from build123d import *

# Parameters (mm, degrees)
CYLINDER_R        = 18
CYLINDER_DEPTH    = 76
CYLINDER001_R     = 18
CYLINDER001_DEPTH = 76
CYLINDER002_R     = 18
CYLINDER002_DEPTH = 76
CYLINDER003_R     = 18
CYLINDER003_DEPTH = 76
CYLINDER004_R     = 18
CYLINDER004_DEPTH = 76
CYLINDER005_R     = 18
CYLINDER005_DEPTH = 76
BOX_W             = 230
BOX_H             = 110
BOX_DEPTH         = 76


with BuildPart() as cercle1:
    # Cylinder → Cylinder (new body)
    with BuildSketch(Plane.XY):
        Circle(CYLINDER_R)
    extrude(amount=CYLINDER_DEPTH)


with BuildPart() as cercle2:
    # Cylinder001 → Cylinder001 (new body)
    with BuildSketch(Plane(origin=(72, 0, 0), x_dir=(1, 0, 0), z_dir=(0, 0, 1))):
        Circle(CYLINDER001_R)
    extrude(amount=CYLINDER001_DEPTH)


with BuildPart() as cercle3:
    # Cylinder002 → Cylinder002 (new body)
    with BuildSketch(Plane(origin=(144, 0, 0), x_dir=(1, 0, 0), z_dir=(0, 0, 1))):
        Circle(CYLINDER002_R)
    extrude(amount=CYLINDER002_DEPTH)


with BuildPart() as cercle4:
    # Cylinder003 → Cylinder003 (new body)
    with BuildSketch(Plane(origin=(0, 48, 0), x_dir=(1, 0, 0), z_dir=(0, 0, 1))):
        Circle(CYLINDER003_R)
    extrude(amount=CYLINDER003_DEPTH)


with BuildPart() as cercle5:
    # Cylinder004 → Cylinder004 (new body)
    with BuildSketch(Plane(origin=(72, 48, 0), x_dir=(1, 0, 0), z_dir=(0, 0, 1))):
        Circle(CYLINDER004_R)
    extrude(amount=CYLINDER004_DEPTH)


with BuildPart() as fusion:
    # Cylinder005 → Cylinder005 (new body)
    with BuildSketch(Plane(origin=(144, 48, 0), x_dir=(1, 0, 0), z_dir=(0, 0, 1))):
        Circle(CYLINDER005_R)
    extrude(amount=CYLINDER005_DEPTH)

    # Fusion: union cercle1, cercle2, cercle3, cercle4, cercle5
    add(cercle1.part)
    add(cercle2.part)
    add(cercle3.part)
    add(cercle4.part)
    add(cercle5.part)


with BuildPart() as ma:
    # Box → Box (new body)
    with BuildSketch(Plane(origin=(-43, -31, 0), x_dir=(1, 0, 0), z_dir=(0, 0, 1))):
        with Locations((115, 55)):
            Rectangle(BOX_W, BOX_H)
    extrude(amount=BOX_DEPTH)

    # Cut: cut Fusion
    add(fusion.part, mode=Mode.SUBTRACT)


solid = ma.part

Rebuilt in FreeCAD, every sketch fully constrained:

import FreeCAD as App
import Part
import Sketcher

V = App.Vector
Q = App.Units.Quantity

doc = App.newDocument("Part")
params = doc.addObject("Spreadsheet::Sheet", "Params")
for row, (alias, value) in enumerate([
    ("sketch1_diameter", "36 mm"),
    ("pad1_length", "76 mm"),
    ("sketch2_diameter", "36 mm"),
    ("pad2_length", "76 mm"),
    ("sketch3_diameter", "36 mm"),
    ("pad3_length", "76 mm"),
    ("sketch4_diameter", "36 mm"),
    ("pad4_length", "76 mm"),
    ("sketch5_diameter", "36 mm"),
    ("pad5_length", "76 mm"),
    ("sketch6_diameter", "36 mm"),
    ("pad6_length", "76 mm"),
    ("sketch7_width", "230 mm"),
    ("sketch7_height", "110 mm"),
    ("pad7_length", "76 mm"),
], start=1):
    params.set(f"A{row}", alias)
    params.set(f"B{row}", "=" + value)
    params.setAlias(f"B{row}", alias)

body = doc.addObject("PartDesign::Body", "Body")

# Sketch on XY plane
sketch1 = body.newObject("Sketcher::SketchObject", "Sketch")
sketch1.AttachmentSupport = (doc.getObject("XY_Plane"), [""])
sketch1.MapMode = "FlatFace"
sketch1.addGeometry(Part.Circle(V(0, 0, 0), V(0, 0, 1), 18), False)
sketch1.addConstraint([
    Sketcher.Constraint("Coincident", 0, 3, -1, 1),
    Sketcher.Constraint("Diameter", 0, Q("36 mm")),
])
sketch1.setExpression("Constraints[1]", "Params.sketch1_diameter")
pad1 = body.newObject("PartDesign::Pad", "Pad")
pad1.Profile = sketch1
pad1.setExpression("Length", "Params.pad1_length")
body2 = doc.addObject("PartDesign::Body", "Body001")

# Sketch on XY plane
sketch2 = body2.newObject("Sketcher::SketchObject", "Sketch001")
sketch2.AttachmentSupport = (doc.getObject("XY_Plane001"), [""])
sketch2.MapMode = "FlatFace"
sketch2.addGeometry(Part.Circle(V(72, 0, 0), V(0, 0, 1), 18), False)
sketch2.addConstraint([
    Sketcher.Constraint("PointOnObject", 0, 3, -1),
    Sketcher.Constraint("Diameter", 0, Q("36 mm")),
    Sketcher.Constraint("DistanceX", -1, 1, 0, 3, Q("72 mm")),
])
sketch2.setExpression("Constraints[1]", "Params.sketch2_diameter")
pad2 = body2.newObject("PartDesign::Pad", "Pad001")
pad2.Profile = sketch2
pad2.setExpression("Length", "Params.pad2_length")
body3 = doc.addObject("PartDesign::Body", "Body002")

# Sketch on XY plane
sketch3 = body3.newObject("Sketcher::SketchObject", "Sketch002")
sketch3.AttachmentSupport = (doc.getObject("XY_Plane002"), [""])
sketch3.MapMode = "FlatFace"
sketch3.addGeometry(Part.Circle(V(144, 0, 0), V(0, 0, 1), 18), False)
sketch3.addConstraint([
    Sketcher.Constraint("PointOnObject", 0, 3, -1),
    Sketcher.Constraint("Diameter", 0, Q("36 mm")),
    Sketcher.Constraint("DistanceX", -1, 1, 0, 3, Q("144 mm")),
])
sketch3.setExpression("Constraints[1]", "Params.sketch3_diameter")
pad3 = body3.newObject("PartDesign::Pad", "Pad002")
pad3.Profile = sketch3
pad3.setExpression("Length", "Params.pad3_length")
body4 = doc.addObject("PartDesign::Body", "Body003")

# Sketch on XY plane
sketch4 = body4.newObject("Sketcher::SketchObject", "Sketch003")
sketch4.AttachmentSupport = (doc.getObject("XY_Plane003"), [""])
sketch4.MapMode = "FlatFace"
sketch4.addGeometry(Part.Circle(V(0, 48, 0), V(0, 0, 1), 18), False)
sketch4.addConstraint([
    Sketcher.Constraint("PointOnObject", 0, 3, -2),
    Sketcher.Constraint("Diameter", 0, Q("36 mm")),
    Sketcher.Constraint("DistanceY", -1, 1, 0, 3, Q("48 mm")),
])
sketch4.setExpression("Constraints[1]", "Params.sketch4_diameter")
pad4 = body4.newObject("PartDesign::Pad", "Pad003")
pad4.Profile = sketch4
pad4.setExpression("Length", "Params.pad4_length")
body5 = doc.addObject("PartDesign::Body", "Body004")

# Sketch on XY plane
sketch5 = body5.newObject("Sketcher::SketchObject", "Sketch004")
sketch5.AttachmentSupport = (doc.getObject("XY_Plane004"), [""])
sketch5.MapMode = "FlatFace"
sketch5.addGeometry(Part.Circle(V(72, 48, 0), V(0, 0, 1), 18), False)
sketch5.addConstraint([
    Sketcher.Constraint("Diameter", 0, Q("36 mm")),
    Sketcher.Constraint("DistanceX", -1, 1, 0, 3, Q("72 mm")),
    Sketcher.Constraint("DistanceY", -1, 1, 0, 3, Q("48 mm")),
])
sketch5.setExpression("Constraints[0]", "Params.sketch5_diameter")
pad5 = body5.newObject("PartDesign::Pad", "Pad004")
pad5.Profile = sketch5
pad5.setExpression("Length", "Params.pad5_length")
body6 = doc.addObject("PartDesign::Body", "Body005")
body6.AllowCompound = True

# Sketch on XY plane
sketch6 = body6.newObject("Sketcher::SketchObject", "Sketch005")
sketch6.AttachmentSupport = (doc.getObject("XY_Plane005"), [""])
sketch6.MapMode = "FlatFace"
sketch6.addGeometry(Part.Circle(V(144, 48, 0), V(0, 0, 1), 18), False)
sketch6.addConstraint([
    Sketcher.Constraint("Diameter", 0, Q("36 mm")),
    Sketcher.Constraint("DistanceX", -1, 1, 0, 3, Q("144 mm")),
    Sketcher.Constraint("DistanceY", -1, 1, 0, 3, Q("48 mm")),
])
sketch6.setExpression("Constraints[0]", "Params.sketch6_diameter")
pad6 = body6.newObject("PartDesign::Pad", "Pad005")
pad6.Profile = sketch6
pad6.setExpression("Length", "Params.pad6_length")
doc.recompute()

boolean = body6.newObject("PartDesign::Boolean", "Boolean")
boolean.Type = "Fuse"
boolean.addObjects([body])
doc.recompute()

boolean2 = body6.newObject("PartDesign::Boolean", "Boolean001")
boolean2.Type = "Fuse"
boolean2.addObjects([body2])
doc.recompute()

boolean3 = body6.newObject("PartDesign::Boolean", "Boolean002")
boolean3.Type = "Fuse"
boolean3.addObjects([body3])
doc.recompute()

boolean4 = body6.newObject("PartDesign::Boolean", "Boolean003")
boolean4.Type = "Fuse"
boolean4.addObjects([body4])
doc.recompute()

boolean5 = body6.newObject("PartDesign::Boolean", "Boolean004")
boolean5.Type = "Fuse"
boolean5.addObjects([body5])
body7 = doc.addObject("PartDesign::Body", "Body006")

# Sketch on XY plane
sketch7 = body7.newObject("Sketcher::SketchObject", "Sketch006")
sketch7.AttachmentSupport = (doc.getObject("XY_Plane006"), [""])
sketch7.MapMode = "FlatFace"
sketch7.addGeometry([
    Part.LineSegment(V(-43, 79, 0), V(-43, -31, 0)),
    Part.LineSegment(V(-43, -31, 0), V(187, -31, 0)),
    Part.LineSegment(V(187, -31, 0), V(187, 79, 0)),
    Part.LineSegment(V(187, 79, 0), V(-43, 79, 0)),
], False)
sketch7.addConstraint([
    Sketcher.Constraint("Coincident", 0, 2, 1, 1),
    Sketcher.Constraint("Coincident", 1, 2, 2, 1),
    Sketcher.Constraint("Coincident", 2, 2, 3, 1),
    Sketcher.Constraint("Coincident", 3, 2, 0, 1),
    Sketcher.Constraint("Vertical", 0),
    Sketcher.Constraint("Horizontal", 1),
    Sketcher.Constraint("Vertical", 2),
    Sketcher.Constraint("Horizontal", 3),
    Sketcher.Constraint("DistanceX", 1, 1, 1, 2, Q("230 mm")),
    Sketcher.Constraint("DistanceY", 0, 2, 0, 1, Q("110 mm")),
    Sketcher.Constraint("DistanceX", 0, 2, -1, 1, Q("43 mm")),
    Sketcher.Constraint("DistanceY", 0, 2, -1, 1, Q("31 mm")),
])
sketch7.setExpression("Constraints[8]", "Params.sketch7_width")
sketch7.setExpression("Constraints[9]", "Params.sketch7_height")
pad7 = body7.newObject("PartDesign::Pad", "Pad006")
pad7.Profile = sketch7
pad7.setExpression("Length", "Params.pad7_length")
doc.recompute()

boolean6 = body7.newObject("PartDesign::Boolean", "Boolean005")
boolean6.Type = "Cut"
boolean6.addObjects([body6])

doc.recompute()
